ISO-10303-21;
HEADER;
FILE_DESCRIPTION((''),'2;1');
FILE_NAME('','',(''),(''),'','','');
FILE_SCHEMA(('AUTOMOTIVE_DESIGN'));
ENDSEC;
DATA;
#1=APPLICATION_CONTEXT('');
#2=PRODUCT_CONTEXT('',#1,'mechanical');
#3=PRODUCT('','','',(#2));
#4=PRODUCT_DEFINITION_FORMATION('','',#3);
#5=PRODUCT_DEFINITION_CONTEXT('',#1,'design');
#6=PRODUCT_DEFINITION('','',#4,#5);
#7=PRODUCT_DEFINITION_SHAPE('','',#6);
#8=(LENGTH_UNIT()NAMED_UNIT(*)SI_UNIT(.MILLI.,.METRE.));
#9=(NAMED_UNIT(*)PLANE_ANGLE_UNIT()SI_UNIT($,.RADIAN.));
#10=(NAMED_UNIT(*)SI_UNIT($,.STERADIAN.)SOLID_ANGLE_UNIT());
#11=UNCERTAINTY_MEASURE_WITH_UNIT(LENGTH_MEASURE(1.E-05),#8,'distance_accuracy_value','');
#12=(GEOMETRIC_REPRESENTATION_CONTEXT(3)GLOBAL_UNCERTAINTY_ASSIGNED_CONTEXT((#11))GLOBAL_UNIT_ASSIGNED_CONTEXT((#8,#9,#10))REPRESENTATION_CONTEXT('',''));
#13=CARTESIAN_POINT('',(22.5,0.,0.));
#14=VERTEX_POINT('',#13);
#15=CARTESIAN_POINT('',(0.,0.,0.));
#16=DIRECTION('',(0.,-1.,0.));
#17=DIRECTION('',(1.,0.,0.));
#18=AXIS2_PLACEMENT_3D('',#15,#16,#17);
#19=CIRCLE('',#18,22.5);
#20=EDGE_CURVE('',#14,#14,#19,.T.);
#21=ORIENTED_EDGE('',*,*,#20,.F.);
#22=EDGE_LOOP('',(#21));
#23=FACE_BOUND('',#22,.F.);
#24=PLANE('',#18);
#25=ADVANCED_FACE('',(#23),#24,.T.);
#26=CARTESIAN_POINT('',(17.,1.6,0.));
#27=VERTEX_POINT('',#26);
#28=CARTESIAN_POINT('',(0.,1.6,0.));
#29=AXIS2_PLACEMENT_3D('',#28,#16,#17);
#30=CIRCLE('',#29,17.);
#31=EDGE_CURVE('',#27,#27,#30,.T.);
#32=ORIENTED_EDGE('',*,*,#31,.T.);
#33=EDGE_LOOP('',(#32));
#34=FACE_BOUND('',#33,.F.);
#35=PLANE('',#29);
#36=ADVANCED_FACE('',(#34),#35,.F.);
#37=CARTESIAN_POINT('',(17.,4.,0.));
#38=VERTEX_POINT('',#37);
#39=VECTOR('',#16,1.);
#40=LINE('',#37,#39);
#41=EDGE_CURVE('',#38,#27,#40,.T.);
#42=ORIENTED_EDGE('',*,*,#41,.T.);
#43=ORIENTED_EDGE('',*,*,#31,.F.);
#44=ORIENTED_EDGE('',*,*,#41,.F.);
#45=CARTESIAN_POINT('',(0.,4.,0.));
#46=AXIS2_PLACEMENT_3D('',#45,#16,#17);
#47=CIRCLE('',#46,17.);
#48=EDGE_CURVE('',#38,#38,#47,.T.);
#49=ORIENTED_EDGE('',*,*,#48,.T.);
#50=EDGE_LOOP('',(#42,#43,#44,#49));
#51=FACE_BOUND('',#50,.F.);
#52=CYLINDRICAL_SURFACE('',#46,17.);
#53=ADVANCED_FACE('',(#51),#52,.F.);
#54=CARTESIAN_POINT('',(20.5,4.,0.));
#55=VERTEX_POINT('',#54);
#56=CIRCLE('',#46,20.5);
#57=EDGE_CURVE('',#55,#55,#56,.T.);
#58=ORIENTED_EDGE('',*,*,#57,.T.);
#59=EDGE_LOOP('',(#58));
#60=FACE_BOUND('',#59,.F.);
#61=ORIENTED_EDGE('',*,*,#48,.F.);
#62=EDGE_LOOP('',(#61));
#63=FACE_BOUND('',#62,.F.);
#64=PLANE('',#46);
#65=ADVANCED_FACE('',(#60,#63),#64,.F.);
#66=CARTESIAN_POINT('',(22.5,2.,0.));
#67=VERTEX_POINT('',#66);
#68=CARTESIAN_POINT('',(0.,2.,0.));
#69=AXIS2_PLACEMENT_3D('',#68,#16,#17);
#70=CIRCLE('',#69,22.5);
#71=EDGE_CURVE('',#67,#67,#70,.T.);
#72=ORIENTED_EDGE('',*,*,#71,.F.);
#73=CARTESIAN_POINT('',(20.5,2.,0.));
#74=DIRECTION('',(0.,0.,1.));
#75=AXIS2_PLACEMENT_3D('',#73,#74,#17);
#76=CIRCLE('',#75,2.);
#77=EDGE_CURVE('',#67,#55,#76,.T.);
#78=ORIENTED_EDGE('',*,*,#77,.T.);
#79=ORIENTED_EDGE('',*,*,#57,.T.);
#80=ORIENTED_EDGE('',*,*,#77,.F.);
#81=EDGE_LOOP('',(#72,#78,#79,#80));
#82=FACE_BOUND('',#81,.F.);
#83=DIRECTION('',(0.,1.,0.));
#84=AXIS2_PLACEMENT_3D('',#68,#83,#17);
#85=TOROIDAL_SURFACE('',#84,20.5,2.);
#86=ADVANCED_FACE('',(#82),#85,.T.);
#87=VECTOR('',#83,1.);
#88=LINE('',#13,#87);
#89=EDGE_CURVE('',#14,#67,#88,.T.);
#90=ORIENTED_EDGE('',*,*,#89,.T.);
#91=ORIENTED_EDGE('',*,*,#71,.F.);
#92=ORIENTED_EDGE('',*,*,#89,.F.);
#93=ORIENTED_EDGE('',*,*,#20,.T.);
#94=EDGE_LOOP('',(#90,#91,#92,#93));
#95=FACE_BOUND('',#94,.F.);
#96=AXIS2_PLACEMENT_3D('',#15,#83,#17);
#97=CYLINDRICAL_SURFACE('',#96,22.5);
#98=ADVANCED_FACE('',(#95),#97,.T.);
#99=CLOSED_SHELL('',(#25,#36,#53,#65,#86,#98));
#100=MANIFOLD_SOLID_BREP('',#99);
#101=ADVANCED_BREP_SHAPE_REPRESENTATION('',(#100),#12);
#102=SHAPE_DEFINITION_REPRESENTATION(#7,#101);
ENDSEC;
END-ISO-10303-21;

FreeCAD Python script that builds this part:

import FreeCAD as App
import Part
import Sketcher

V = App.Vector
Q = App.Units.Quantity


def edges_at(feature, points):
    """Names of the edges that pass closest to the given points."""
    edges = feature.Shape.Edges
    near = lambda p: min(range(len(edges)), key=lambda i: edges[i].distToShape(Part.Vertex(*p))[0])
    return sorted({f"Edge{near(p) + 1}" for p in points})

doc = App.newDocument("Part")
params = doc.addObject("Spreadsheet::Sheet", "Params")
for row, (alias, value) in enumerate([
    ("sketch1_width", "17 mm"),
    ("sketch1_height", "4 mm"),
    ("sketch1_width2", "22.5 mm"),
    ("sketch1_height2", "1.6 mm"),
    ("revolution_angle", "360 deg"),
    ("fillet_radius", "2 mm"),
], start=1):
    params.set(f"A{row}", alias)
    params.set(f"B{row}", "=" + value)
    params.setAlias(f"B{row}", alias)

body = doc.addObject("PartDesign::Body", "Body")

sketch1 = body.newObject("Sketcher::SketchObject", "Sketch")
sketch1.AttachmentSupport = (doc.getObject("XY_Plane"), [""])
sketch1.MapMode = "FlatFace"
sketch1.addGeometry([
    Part.LineSegment(V(17, 1.6, 0), V(0, 1.6, 0)),
    Part.LineSegment(V(0, 1.6, 0), V(0, 0, 0)),
    Part.LineSegment(V(0, 0, 0), V(22.5, 0, 0)),
    Part.LineSegment(V(22.5, 0, 0), V(22.5, 4, 0)),
    Part.LineSegment(V(22.5, 4, 0), V(17, 4, 0)),
    Part.LineSegment(V(17, 4, 0), V(17, 1.6, 0)),
], False)
sketch1.addConstraint([
    Sketcher.Constraint("Coincident", 0, 2, 1, 1),
    Sketcher.Constraint("Coincident", 1, 2, 2, 1),
    Sketcher.Constraint("Coincident", 2, 2, 3, 1),
    Sketcher.Constraint("Coincident", 3, 2, 4, 1),
    Sketcher.Constraint("Coincident", 4, 2, 5, 1),
    Sketcher.Constraint("Coincident", 5, 2, 0, 1),
    Sketcher.Constraint("Horizontal", 0),
    Sketcher.Constraint("Vertical", 1),
    Sketcher.Constraint("Horizontal", 2),
    Sketcher.Constraint("Vertical", 3),
    Sketcher.Constraint("Horizontal", 4),
    Sketcher.Constraint("Vertical", 5),
    Sketcher.Constraint("Coincident", 1, 2, -1, 1),
    Sketcher.Constraint("DistanceX", 0, 2, 0, 1, Q("17 mm")),
    Sketcher.Constraint("DistanceY", 3, 1, 3, 2, Q("4 mm")),
    Sketcher.Constraint("DistanceX", 2, 1, 2, 2, Q("22.5 mm")),
    Sketcher.Constraint("DistanceY", 1, 2, 1, 1, Q("1.6 mm")),
])
sketch1.setExpression("Constraints[13]", "Params.sketch1_width")
sketch1.setExpression("Constraints[14]", "Params.sketch1_height")
sketch1.setExpression("Constraints[15]", "Params.sketch1_width2")
sketch1.setExpression("Constraints[16]", "Params.sketch1_height2")
revolution = body.newObject("PartDesign::Revolution", "Revolution")
revolution.Profile = sketch1
revolution.ReferenceAxis = (sketch1, ["V_Axis"])
revolution.setExpression("Angle", "Params.revolution_angle")
doc.recompute()

fillet = body.newObject("PartDesign::Fillet", "Fillet")
fillet.Base = (revolution, edges_at(revolution, [(-22.5, 4, 0)]))
fillet.setExpression("Radius", "Params.fillet_radius")

doc.recompute()
